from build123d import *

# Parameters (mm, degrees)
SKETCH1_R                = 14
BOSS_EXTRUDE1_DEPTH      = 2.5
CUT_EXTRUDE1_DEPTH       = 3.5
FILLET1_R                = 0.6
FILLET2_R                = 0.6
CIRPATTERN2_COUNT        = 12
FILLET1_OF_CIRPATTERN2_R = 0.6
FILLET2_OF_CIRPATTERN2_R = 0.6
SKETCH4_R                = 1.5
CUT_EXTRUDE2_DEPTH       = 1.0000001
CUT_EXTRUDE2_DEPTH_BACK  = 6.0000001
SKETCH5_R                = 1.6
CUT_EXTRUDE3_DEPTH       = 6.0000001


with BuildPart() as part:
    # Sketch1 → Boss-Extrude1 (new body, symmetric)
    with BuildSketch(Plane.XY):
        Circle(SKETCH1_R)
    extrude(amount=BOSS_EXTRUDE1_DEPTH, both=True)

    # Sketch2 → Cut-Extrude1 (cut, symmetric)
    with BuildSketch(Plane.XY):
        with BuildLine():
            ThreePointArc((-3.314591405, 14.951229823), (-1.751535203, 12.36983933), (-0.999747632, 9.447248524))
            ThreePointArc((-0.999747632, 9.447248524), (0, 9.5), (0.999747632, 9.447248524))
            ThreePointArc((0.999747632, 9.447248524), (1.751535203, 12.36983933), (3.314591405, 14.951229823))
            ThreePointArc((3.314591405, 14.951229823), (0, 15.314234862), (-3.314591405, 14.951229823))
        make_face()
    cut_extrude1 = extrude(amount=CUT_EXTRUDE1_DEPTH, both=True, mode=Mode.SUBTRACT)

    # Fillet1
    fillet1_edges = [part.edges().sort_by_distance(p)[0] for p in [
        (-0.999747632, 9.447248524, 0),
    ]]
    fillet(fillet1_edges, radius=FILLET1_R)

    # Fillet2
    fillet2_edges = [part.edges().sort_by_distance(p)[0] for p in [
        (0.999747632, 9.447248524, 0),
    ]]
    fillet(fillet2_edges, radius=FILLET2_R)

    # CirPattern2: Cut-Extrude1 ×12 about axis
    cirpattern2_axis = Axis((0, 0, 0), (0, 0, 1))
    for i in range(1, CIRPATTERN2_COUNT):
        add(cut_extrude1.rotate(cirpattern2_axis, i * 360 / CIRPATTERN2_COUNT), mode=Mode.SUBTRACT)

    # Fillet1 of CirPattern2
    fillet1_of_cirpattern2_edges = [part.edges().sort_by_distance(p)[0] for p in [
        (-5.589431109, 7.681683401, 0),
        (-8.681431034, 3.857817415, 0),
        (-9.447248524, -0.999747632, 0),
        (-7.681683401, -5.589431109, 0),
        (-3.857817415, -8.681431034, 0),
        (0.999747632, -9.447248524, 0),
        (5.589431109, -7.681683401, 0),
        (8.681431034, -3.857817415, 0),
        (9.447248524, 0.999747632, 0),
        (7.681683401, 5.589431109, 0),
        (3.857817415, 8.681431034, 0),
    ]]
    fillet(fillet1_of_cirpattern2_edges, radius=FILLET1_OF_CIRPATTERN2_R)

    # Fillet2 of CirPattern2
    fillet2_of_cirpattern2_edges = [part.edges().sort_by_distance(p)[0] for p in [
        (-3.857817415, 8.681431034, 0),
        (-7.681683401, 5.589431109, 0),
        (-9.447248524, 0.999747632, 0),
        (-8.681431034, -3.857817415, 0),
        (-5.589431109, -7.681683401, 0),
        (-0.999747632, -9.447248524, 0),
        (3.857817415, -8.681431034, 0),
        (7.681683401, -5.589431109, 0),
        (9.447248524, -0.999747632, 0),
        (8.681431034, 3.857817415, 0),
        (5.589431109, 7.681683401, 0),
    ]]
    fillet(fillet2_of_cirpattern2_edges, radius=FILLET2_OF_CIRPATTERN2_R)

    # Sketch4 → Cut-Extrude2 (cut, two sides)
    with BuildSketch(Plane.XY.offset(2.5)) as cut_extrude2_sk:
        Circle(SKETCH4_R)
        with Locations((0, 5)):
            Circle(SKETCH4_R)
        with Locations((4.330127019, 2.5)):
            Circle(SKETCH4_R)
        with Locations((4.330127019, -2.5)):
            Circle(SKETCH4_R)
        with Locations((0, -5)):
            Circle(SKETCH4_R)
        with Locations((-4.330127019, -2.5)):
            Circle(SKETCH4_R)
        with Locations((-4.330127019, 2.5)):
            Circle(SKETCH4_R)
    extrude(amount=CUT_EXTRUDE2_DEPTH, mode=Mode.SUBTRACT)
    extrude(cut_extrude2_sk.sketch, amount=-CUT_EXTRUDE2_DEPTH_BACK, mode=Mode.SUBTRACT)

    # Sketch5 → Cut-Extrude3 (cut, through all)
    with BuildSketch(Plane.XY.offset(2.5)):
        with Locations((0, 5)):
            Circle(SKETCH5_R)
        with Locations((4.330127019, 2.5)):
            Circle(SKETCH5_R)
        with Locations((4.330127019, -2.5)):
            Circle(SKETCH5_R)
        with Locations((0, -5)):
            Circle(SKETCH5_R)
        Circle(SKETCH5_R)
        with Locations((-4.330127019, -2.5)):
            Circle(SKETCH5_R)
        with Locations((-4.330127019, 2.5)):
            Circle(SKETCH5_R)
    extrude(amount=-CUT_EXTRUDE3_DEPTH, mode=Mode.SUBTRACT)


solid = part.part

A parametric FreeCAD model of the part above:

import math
import FreeCAD as App
import Part
import Sketcher

V = App.Vector


def edges_at(feature, points):
    """Names of the edges that pass closest to the given points."""
    edges = feature.Shape.Edges
    near = lambda p: min(range(len(edges)), key=lambda i: edges[i].distToShape(Part.Vertex(*p))[0])
    return sorted({f"Edge{near(p) + 1}" for p in points})

doc = App.newDocument("Part")
body = doc.addObject("PartDesign::Body", "Body")

# Sketch on XY plane
sketch1 = doc.addObject("Sketcher::SketchObject", "Sketch")
body.addObject(sketch1)
sketch1.AttachmentSupport = (doc.XY_Plane, [""])
sketch1.MapMode = "FlatFace"
sketch1.addGeometry(Part.Circle(V(0, 0, 0), V(0, 0, 1), 14), False)
sketch1.addConstraint([
    Sketcher.Constraint("Coincident", 0, 3, -1, 1),
    Sketcher.Constraint("Diameter", 0, 28.0),
])
pad1 = doc.addObject("PartDesign::Pad", "Pad")
body.addObject(pad1)
pad1.Profile = sketch1
pad1.Length = 5
pad1.Midplane = True

# Sketch on XY plane
sketch2 = doc.addObject("Sketcher::SketchObject", "Sketch001")
body.addObject(sketch2)
sketch2.AttachmentSupport = (doc.XY_Plane, [""])
sketch2.MapMode = "FlatFace"
sketch2.addGeometry([
    Part.ArcOfCircle(Part.Circle(V(-11.3, 8.4, 0), V(0, 0, 1), 10.3), math.radians(6), math.radians(40)),
    Part.ArcOfCircle(Part.Circle(V(0, 0, 0), V(0, 0, 1), 9.5), math.radians(83.96), math.radians(96.04)),
    Part.ArcOfCircle(Part.Circle(V(11.3, 8.4, 0), V(0, 0, 1), 10.3), math.radians(140), math.radians(174)),
    Part.ArcOfCircle(Part.Circle(V(0, 0, 0), V(0, 0, 1), 15.3), math.radians(78), math.radians(102)),
], False)
sketch2.addConstraint([
    Sketcher.Constraint("Coincident", 0, 1, 1, 2),
    Sketcher.Constraint("Coincident", 1, 1, 2, 2),
    Sketcher.Constraint("Coincident", 2, 1, 3, 1),
    Sketcher.Constraint("Coincident", 3, 2, 0, 2),
    Sketcher.Constraint("Coincident", 1, 3, -1, 1),
    Sketcher.Constraint("Coincident", 3, 3, -1, 1),
    Sketcher.Constraint("Equal", 0, 2),
    Sketcher.Constraint("Symmetric", 0, 3, 2, 3, -2),
    Sketcher.Constraint("Radius", 1, 9.5),
    Sketcher.Constraint("Radius", 0, 10.347382),
    Sketcher.Constraint("Radius", 3, 15.314235),
    Sketcher.Constraint("DistanceY", -1, 1, 0, 1, 9.447249),
    Sketcher.Constraint("DistanceX", -1, 1, 2, 1, 3.314591),
])
pocket1 = doc.addObject("PartDesign::Pocket", "Pocket")
body.addObject(pocket1)
pocket1.Profile = sketch2
pocket1.Length = 7
pocket1.Midplane = True
doc.recompute()

fillet = doc.addObject("PartDesign::Fillet", "Fillet")
body.addObject(fillet)
fillet.Base = (pocket1, edges_at(pocket1, [(-1, 9.447, 0)]))
fillet.Radius = 0.6
doc.recompute()

fillet2 = doc.addObject("PartDesign::Fillet", "Fillet001")
body.addObject(fillet2)
fillet2.Base = (fillet, edges_at(fillet, [(1, 9.447, 0)]))
fillet2.Radius = 0.6
doc.recompute()

polarpattern = doc.addObject("PartDesign::PolarPattern", "PolarPattern")
body.addObject(polarpattern)
polarpattern.Originals = [pocket1]
polarpattern.Axis = (doc.Z_Axis, [""])
polarpattern.Angle = 360
polarpattern.Occurrences = 12
body.Tip = polarpattern
doc.recompute()

fillet3 = doc.addObject("PartDesign::Fillet", "Fillet002")
body.addObject(fillet3)
fillet3.Base = (polarpattern, edges_at(polarpattern, [
    (-5.589, 7.682, 0),
    (-8.681, 3.858, 0),
    (-9.447, -1, 0),
    (-7.682, -5.589, 0),
    (-3.858, -8.681, 0),
    (1, -9.447, 0),
    (5.589, -7.682, 0),
    (8.681, -3.858, 0),
    (9.447, 1, 0),
    (7.682, 5.589, 0),
    (3.858, 8.681, 0),
]))
fillet3.Radius = 0.6
doc.recompute()

fillet4 = doc.addObject("PartDesign::Fillet", "Fillet003")
body.addObject(fillet4)
fillet4.Base = (fillet3, edges_at(fillet3, [
    (-3.858, 8.681, 0),
    (-7.682, 5.589, 0),
    (-9.447, 1, 0),
    (-8.681, -3.858, 0),
    (-5.589, -7.682, 0),
    (-1, -9.447, 0),
    (3.858, -8.681, 0),
    (7.682, -5.589, 0),
    (9.447, -1, 0),
    (8.681, 3.858, 0),
    (5.589, 7.682, 0),
]))
fillet4.Radius = 0.6

# Sketch on XY plane
sketch3 = doc.addObject("Sketcher::SketchObject", "Sketch002")
body.addObject(sketch3)
sketch3.AttachmentSupport = (doc.XY_Plane, [""])
sketch3.MapMode = "FlatFace"
sketch3.AttachmentOffset = App.Placement(V(0, 0, 2.5), App.Rotation())
sketch3.addGeometry([
    Part.Circle(V(0, 0, 0), V(0, 0, 1), 1.5),  # 0
    Part.Circle(V(0, 5, 0), V(0, 0, 1), 1.5),  # 1
    Part.Circle(V(4.3, 2.5, 0), V(0, 0, 1), 1.5),  # 2
    Part.Circle(V(4.3, -2.5, 0), V(0, 0, 1), 1.5),  # 3
    Part.Circle(V(0, -5, 0), V(0, 0, 1), 1.5),  # 4
    Part.Circle(V(-4.3, -2.5, 0), V(0, 0, 1), 1.5),  # 5
    Part.Circle(V(-4.3, 2.5, 0), V(0, 0, 1), 1.5),  # 6
], False)
sketch3.addConstraint([
    Sketcher.Constraint("Coincident", 0, 3, -1, 1),
    Sketcher.Constraint("Equal", 0, 1),
    Sketcher.Constraint("Equal", 1, 2),
    Sketcher.Constraint("Equal", 2, 3),
    Sketcher.Constraint("Equal", 3, 4),
    Sketcher.Constraint("Equal", 4, 5),
    Sketcher.Constraint("Equal", 5, 6),
    Sketcher.Constraint("Symmetric", 1, 3, 4, 3, -1, 1),
    Sketcher.Constraint("Symmetric", 2, 3, 5, 3, -1, 1),
    Sketcher.Constraint("Symmetric", 3, 3, 6, 3, -1, 1),
    Sketcher.Constraint("Symmetric", 3, 3, 5, 3, -2),
    Sketcher.Constraint("PointOnObject", 1, 3, -2),
    Sketcher.Constraint("Diameter", 0, 3.0),
    Sketcher.Constraint("DistanceY", -1, 1, 1, 3, 5.0),
    Sketcher.Constraint("DistanceY", 3, 3, 2, 3, 5.0),
    Sketcher.Constraint("DistanceX", -1, 1, 2, 3, 4.330127),
])
pocket2 = doc.addObject("PartDesign::Pocket", "Pocket001")
body.addObject(pocket2)
pocket2.Profile = sketch3
pocket2.Type = "ThroughAll"
pocket2.Midplane = True

# Sketch on XY plane
sketch4 = doc.addObject("Sketcher::SketchObject", "Sketch003")
body.addObject(sketch4)
sketch4.AttachmentSupport = (doc.XY_Plane, [""])
sketch4.MapMode = "FlatFace"
sketch4.AttachmentOffset = App.Placement(V(0, 0, 2.5), App.Rotation())
sketch4.addGeometry([
    Part.Circle(V(0, 5, 0), V(0, 0, 1), 1.6),  # 0
    Part.Circle(V(4.3, 2.5, 0), V(0, 0, 1), 1.6),  # 1
    Part.Circle(V(4.3, -2.5, 0), V(0, 0, 1), 1.6),  # 2
    Part.Circle(V(0, -5, 0), V(0, 0, 1), 1.6),  # 3
    Part.Circle(V(0, 0, 0), V(0, 0, 1), 1.6),  # 4
    Part.Circle(V(-4.3, -2.5, 0), V(0, 0, 1), 1.6),  # 5
    Part.Circle(V(-4.3, 2.5, 0), V(0, 0, 1), 1.6),  # 6
], False)
sketch4.addConstraint([
    Sketcher.Constraint("Coincident", 4, 3, -1, 1),
    Sketcher.Constraint("Equal", 0, 1),
    Sketcher.Constraint("Equal", 1, 2),
    Sketcher.Constraint("Equal", 2, 3),
    Sketcher.Constraint("Equal", 3, 4),
    Sketcher.Constraint("Equal", 4, 5),
    Sketcher.Constraint("Equal", 5, 6),
    Sketcher.Constraint("Symmetric", 0, 3, 3, 3, -1, 1),
    Sketcher.Constraint("Symmetric", 1, 3, 5, 3, -1, 1),
    Sketcher.Constraint("Symmetric", 2, 3, 6, 3, -1, 1),
    Sketcher.Constraint("Symmetric", 2, 3, 5, 3, -2),
    Sketcher.Constraint("PointOnObject", 0, 3, -2),
    Sketcher.Constraint("Diameter", 0, 3.2),
    Sketcher.Constraint("DistanceY", -1, 1, 0, 3, 5.0),
    Sketcher.Constraint("DistanceY", 2, 3, 1, 3, 5.0),
    Sketcher.Constraint("DistanceX", -1, 1, 1, 3, 4.330127),
])
pocket3 = doc.addObject("PartDesign::Pocket", "Pocket002")
body.addObject(pocket3)
pocket3.Profile = sketch4
pocket3.Type = "ThroughAll"

doc.recompute()
